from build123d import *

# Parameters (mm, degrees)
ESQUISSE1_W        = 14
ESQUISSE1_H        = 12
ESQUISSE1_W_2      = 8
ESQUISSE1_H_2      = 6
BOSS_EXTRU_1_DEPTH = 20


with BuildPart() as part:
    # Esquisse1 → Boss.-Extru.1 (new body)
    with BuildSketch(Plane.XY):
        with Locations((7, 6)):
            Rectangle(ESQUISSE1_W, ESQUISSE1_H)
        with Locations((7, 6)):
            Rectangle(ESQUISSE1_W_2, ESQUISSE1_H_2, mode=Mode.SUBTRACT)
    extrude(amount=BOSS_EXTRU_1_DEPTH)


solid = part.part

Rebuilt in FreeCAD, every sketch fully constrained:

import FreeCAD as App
import Part
import Sketcher
from FreeCAD import Vector
Q = App.Units.Quantity


def add_polygon(sketch, points):
    """Adds a closed chain of lines whose ends are joined by coincident constraints."""
    first, n = sketch.GeometryCount, len(points)
    for a, b in zip(points, points[1:] + points[:1]):
        sketch.addGeometry(Part.LineSegment(App.Vector(*a, 0), App.Vector(*b, 0)), False)
    for i in range(n):
        sketch.addConstraint(Sketcher.Constraint("Coincident", first + i, 2, first + (i + 1) % n, 1))

doc = App.newDocument("Part")
body = doc.addObject("PartDesign::Body", "Body")

# Sketch on XY plane
sketch1 = body.newObject("Sketcher::SketchObject", "Sketch")
sketch1.AttachmentSupport = (doc.getObject("XY_Plane"), [""])
sketch1.MapMode = "FlatFace"
add_polygon(sketch1, [(0, 12), (0, 0), (14, 0), (14, 12)])  # lines 0-3
add_polygon(sketch1, [(11, 3), (3, 3), (3, 9), (11, 9)])  # lines 4-7
sketch1.addConstraint(Sketcher.Constraint("Vertical", 0))
sketch1.addConstraint(Sketcher.Constraint("Horizontal", 1))
sketch1.addConstraint(Sketcher.Constraint("Vertical", 2))
sketch1.addConstraint(Sketcher.Constraint("Horizontal", 3))
sketch1.addConstraint(Sketcher.Constraint("Horizontal", 4))
sketch1.addConstraint(Sketcher.Constraint("Vertical", 5))
sketch1.addConstraint(Sketcher.Constraint("Horizontal", 6))
sketch1.addConstraint(Sketcher.Constraint("Vertical", 7))
sketch1.addConstraint(Sketcher.Constraint("Coincident", 0, 2, -1, 1))
sketch1.addConstraint(Sketcher.Constraint("DistanceX", 1, 1, 1, 2, Q("14 mm")))
sketch1.addConstraint(Sketcher.Constraint("DistanceX", 4, 2, 4, 1, Q("8 mm")))
sketch1.addConstraint(Sketcher.Constraint("DistanceY", 0, 2, 0, 1, Q("12 mm")))
sketch1.addConstraint(Sketcher.Constraint("DistanceY", 5, 1, 5, 2, Q("6 mm")))
sketch1.addConstraint(Sketcher.Constraint("DistanceX", -1, 1, 4, 2, Q("3 mm")))
sketch1.addConstraint(Sketcher.Constraint("DistanceY", -1, 1, 4, 2, Q("3 mm")))
pad1 = body.newObject("PartDesign::Pad", "Pad")
pad1.Profile = sketch1
pad1.Length = 20

doc.recompute()
